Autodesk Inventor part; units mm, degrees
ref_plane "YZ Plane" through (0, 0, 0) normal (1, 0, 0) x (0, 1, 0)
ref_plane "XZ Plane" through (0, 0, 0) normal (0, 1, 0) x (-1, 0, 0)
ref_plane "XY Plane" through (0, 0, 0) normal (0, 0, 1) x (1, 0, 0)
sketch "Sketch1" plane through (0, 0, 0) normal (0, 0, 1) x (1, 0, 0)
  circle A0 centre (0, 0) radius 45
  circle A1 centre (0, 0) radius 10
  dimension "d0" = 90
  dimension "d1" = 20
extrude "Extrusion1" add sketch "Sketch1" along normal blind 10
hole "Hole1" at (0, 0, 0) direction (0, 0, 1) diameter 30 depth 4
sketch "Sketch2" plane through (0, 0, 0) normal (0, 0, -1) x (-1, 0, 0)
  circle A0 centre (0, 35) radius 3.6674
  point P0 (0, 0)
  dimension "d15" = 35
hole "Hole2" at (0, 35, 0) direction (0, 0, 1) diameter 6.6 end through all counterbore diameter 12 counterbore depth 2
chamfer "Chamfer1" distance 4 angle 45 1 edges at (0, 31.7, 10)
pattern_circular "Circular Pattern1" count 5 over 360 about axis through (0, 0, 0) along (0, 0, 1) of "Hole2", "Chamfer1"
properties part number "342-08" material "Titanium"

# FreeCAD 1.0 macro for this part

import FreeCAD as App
import Part
import Sketcher
from FreeCAD import Vector


def edges_at(feature, points):
    """Names of the edges that pass closest to the given points."""
    edges = feature.Shape.Edges
    near = lambda p: min(range(len(edges)), key=lambda i: edges[i].distToShape(Part.Vertex(*p))[0])
    return sorted({f"Edge{near(p) + 1}" for p in points})

doc = App.newDocument("Part")
body = doc.addObject("PartDesign::Body", "Body")

sketch1 = body.newObject("Sketcher::SketchObject", "Sketch")
sketch1.AttachmentSupport = (doc.getObject("XY_Plane"), [""])
sketch1.MapMode = "FlatFace"
sketch1.addGeometry(Part.Circle(Vector(0, 0, 0), Vector(0, 0, 1), 45), False)
sketch1.addGeometry(Part.Circle(Vector(0, 0, 0), Vector(0, 0, 1), 10), False)
sketch1.addConstraint(Sketcher.Constraint("Coincident", 0, 3, -1, 1))
sketch1.addConstraint(Sketcher.Constraint("Coincident", 1, 3, -1, 1))
sketch1.addConstraint(Sketcher.Constraint("Diameter", 0, 90.0))
sketch1.addConstraint(Sketcher.Constraint("Diameter", 1, 20.0))
pad1 = body.newObject("PartDesign::Pad", "Pad")
pad1.Profile = sketch1
pad1.Length = 10

sketch2 = body.newObject("Sketcher::SketchObject", "Sketch001")
sketch2.AttachmentSupport = (doc.getObject("XY_Plane"), [""])
sketch2.MapMode = "FlatFace"
sketch2.addGeometry(Part.Circle(Vector(0, 0, 0), Vector(0, 0, 1), 15), False)
sketch2.addConstraint(Sketcher.Constraint("Coincident", 0, 3, -1, 1))
sketch2.addConstraint(Sketcher.Constraint("Diameter", 0, 30.0))
doc.recompute()
hole = body.newObject("PartDesign::Hole", "Hole")
hole.Profile = sketch2
hole.ThreadType = "None"
hole.Diameter = 30
hole.DepthType = "Dimension"
hole.Depth = 4
hole.DrillPoint = "Flat"
hole.Reversed = True

sketch3 = body.newObject("Sketcher::SketchObject", "Sketch002")
sketch3.AttachmentSupport = (doc.getObject("XY_Plane"), [""])
sketch3.MapMode = "FlatFace"
sketch3.addGeometry(Part.Circle(Vector(0, 35, 0), Vector(0, 0, 1), 3.3), False)
sketch3.addConstraint(Sketcher.Constraint("PointOnObject", 0, 3, -2))
sketch3.addConstraint(Sketcher.Constraint("Diameter", 0, 6.6))
sketch3.addConstraint(Sketcher.Constraint("DistanceY", -1, 1, 0, 3, 35.0))
doc.recompute()
hole2 = body.newObject("PartDesign::Hole", "Hole001")
hole2.Profile = sketch3
hole2.ThreadType = "None"
hole2.Diameter = 6.6
hole2.DepthType = "ThroughAll"
hole2.HoleCutType = "Counterbore"
hole2.HoleCutDiameter = 12
hole2.HoleCutDepth = 2
hole2.Reversed = True
doc.recompute()

chamfer = body.newObject("PartDesign::Chamfer", "Chamfer")
chamfer.Base = (hole2, edges_at(hole2, [(0, 31.7, 10)]))
chamfer.Size = 4
doc.recompute()

polarpattern = body.newObject("PartDesign::PolarPattern", "PolarPattern")
polarpattern.Originals = [hole2, chamfer]
polarpattern.Axis = (doc.getObject("Z_Axis"), [""])
polarpattern.Angle = 360
polarpattern.Occurrences = 5
body.Tip = polarpattern

doc.recompute()
